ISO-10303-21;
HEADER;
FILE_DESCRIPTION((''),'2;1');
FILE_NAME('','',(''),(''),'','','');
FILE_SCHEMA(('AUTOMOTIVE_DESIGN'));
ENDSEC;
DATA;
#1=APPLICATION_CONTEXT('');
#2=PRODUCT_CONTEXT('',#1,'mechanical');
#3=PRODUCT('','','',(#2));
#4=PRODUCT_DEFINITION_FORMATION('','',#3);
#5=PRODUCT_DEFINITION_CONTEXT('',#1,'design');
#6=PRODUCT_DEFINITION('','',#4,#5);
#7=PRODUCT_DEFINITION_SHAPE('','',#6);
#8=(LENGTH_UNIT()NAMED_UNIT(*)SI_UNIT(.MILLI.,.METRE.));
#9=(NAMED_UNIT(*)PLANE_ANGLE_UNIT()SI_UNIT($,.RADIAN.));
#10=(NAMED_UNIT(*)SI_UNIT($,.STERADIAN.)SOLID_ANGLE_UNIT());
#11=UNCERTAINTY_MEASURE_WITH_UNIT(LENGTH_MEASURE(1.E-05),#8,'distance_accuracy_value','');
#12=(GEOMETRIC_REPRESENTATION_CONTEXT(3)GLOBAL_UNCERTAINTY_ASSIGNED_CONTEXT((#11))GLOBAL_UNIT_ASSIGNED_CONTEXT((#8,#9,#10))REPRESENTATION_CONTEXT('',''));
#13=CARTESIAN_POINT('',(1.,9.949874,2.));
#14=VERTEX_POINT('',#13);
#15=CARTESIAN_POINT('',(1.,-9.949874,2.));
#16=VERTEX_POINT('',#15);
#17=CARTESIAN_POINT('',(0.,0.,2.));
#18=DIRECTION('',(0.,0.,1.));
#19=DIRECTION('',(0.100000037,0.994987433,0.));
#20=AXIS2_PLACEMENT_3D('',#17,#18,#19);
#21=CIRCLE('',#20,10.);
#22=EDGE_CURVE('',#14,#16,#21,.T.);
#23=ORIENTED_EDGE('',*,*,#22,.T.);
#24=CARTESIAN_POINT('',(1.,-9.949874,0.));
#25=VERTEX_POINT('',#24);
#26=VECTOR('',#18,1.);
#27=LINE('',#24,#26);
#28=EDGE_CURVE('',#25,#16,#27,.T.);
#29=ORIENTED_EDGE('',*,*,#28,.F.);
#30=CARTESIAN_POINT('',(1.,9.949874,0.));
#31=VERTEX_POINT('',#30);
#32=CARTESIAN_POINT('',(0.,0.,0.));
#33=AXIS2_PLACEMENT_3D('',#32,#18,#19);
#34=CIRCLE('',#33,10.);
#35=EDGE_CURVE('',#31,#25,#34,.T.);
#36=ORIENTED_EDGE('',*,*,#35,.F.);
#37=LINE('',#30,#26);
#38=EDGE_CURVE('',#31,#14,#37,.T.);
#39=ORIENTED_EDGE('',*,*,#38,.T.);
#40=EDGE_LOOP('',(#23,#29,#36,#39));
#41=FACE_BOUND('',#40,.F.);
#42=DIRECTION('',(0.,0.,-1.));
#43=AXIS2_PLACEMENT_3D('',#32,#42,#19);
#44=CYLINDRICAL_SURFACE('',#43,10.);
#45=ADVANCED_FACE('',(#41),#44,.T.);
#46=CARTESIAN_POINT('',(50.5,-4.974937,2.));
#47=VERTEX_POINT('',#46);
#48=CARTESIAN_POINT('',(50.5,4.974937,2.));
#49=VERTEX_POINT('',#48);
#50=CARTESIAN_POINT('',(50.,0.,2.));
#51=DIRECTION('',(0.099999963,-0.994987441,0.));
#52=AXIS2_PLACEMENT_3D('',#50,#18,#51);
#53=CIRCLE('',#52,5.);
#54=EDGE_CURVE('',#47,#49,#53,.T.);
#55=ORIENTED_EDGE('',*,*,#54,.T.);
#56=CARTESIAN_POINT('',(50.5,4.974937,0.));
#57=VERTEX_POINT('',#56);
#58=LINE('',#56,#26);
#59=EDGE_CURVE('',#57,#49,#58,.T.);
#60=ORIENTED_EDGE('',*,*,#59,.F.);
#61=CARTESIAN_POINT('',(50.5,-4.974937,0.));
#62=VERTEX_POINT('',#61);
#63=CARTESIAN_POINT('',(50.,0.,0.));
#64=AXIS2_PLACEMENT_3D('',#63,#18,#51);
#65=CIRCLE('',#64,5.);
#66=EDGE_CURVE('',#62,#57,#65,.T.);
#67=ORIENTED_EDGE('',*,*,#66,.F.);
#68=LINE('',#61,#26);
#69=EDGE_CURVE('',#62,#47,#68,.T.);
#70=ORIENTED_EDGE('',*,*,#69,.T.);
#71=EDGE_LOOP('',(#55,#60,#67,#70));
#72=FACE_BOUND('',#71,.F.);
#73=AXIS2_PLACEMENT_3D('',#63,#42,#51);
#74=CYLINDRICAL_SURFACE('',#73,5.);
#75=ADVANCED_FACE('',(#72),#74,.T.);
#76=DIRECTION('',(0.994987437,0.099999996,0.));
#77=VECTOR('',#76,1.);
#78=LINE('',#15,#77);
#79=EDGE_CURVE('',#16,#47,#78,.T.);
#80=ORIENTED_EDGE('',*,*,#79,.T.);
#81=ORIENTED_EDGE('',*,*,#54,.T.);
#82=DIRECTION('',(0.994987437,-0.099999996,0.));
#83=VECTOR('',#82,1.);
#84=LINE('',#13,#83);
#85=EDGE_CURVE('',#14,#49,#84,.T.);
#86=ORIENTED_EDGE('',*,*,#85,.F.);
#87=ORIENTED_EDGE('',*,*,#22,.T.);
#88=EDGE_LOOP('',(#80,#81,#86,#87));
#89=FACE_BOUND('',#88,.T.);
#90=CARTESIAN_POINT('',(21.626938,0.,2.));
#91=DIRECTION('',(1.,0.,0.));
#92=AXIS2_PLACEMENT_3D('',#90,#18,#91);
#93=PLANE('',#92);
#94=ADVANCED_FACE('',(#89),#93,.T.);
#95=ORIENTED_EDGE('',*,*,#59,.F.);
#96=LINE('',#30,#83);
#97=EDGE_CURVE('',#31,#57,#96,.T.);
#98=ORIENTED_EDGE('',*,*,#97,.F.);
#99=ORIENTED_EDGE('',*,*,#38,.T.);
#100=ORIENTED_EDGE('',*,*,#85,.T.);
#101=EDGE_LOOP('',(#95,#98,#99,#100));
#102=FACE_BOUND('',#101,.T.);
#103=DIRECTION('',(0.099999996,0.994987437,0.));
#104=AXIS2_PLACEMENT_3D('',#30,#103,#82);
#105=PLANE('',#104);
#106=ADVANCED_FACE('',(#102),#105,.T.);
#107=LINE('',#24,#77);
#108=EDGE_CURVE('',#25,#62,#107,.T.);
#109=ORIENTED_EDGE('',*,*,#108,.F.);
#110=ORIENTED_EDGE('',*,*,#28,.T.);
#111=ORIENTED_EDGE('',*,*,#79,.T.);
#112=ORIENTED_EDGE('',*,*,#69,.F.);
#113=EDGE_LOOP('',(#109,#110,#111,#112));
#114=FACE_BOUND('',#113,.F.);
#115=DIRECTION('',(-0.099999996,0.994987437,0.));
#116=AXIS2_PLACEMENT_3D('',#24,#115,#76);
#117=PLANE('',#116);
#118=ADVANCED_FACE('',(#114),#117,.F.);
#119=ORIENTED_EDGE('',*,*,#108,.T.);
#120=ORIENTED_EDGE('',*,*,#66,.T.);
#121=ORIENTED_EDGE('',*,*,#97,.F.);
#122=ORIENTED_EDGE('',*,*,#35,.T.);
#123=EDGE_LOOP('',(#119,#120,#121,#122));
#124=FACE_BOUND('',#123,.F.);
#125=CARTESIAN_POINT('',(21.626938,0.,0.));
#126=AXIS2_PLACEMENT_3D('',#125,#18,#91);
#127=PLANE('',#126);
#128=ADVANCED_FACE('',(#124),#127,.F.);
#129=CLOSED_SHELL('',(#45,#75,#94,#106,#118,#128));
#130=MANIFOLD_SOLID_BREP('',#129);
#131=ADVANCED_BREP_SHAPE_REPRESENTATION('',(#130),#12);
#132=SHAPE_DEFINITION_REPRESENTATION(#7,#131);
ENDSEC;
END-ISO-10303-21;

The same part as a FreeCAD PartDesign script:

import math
import FreeCAD as App
import Part
import Sketcher
from FreeCAD import Vector

doc = App.newDocument("Part")
body = doc.addObject("PartDesign::Body", "Body")

# Sketch on XY plane
sketch1 = body.newObject("Sketcher::SketchObject", "Sketch")
sketch1.AttachmentSupport = (doc.getObject("XY_Plane"), [""])
sketch1.MapMode = "FlatFace"
sketch1.addGeometry(Part.ArcOfCircle(Part.Circle(Vector(0, 0, 0), Vector(0, 0, 1), 10), math.radians(84.260827), math.radians(275.739173)), False)
sketch1.addGeometry(Part.LineSegment(Vector(1, -9.949874, 0), Vector(50.5, -4.974937, 0)), False)
sketch1.addGeometry(Part.ArcOfCircle(Part.Circle(Vector(50, 0, 0), Vector(0, 0, 1), 5), math.radians(-84.260832), math.radians(84.260832)), False)
sketch1.addGeometry(Part.LineSegment(Vector(50.5, 4.974937, 0), Vector(1, 9.949874, 0)), False)
sketch1.addConstraint(Sketcher.Constraint("Tangent", 0, 2, 1, 1))
sketch1.addConstraint(Sketcher.Constraint("Tangent", 1, 2, 2, 1))
sketch1.addConstraint(Sketcher.Constraint("Tangent", 2, 2, 3, 1))
sketch1.addConstraint(Sketcher.Constraint("Tangent", 3, 2, 0, 1))
sketch1.addConstraint(Sketcher.Constraint("Coincident", 0, 3, -1, 1))
sketch1.addConstraint(Sketcher.Constraint("PointOnObject", 2, 3, -1))
sketch1.addConstraint(Sketcher.Constraint("Radius", 0, 10.0))
sketch1.addConstraint(Sketcher.Constraint("Radius", 2, 5.0))
sketch1.addConstraint(Sketcher.Constraint("DistanceX", -1, 1, 2, 3, 50.0))
pad1 = body.newObject("PartDesign::Pad", "Pad")
pad1.Profile = sketch1
pad1.Length = 2

doc.recompute()
